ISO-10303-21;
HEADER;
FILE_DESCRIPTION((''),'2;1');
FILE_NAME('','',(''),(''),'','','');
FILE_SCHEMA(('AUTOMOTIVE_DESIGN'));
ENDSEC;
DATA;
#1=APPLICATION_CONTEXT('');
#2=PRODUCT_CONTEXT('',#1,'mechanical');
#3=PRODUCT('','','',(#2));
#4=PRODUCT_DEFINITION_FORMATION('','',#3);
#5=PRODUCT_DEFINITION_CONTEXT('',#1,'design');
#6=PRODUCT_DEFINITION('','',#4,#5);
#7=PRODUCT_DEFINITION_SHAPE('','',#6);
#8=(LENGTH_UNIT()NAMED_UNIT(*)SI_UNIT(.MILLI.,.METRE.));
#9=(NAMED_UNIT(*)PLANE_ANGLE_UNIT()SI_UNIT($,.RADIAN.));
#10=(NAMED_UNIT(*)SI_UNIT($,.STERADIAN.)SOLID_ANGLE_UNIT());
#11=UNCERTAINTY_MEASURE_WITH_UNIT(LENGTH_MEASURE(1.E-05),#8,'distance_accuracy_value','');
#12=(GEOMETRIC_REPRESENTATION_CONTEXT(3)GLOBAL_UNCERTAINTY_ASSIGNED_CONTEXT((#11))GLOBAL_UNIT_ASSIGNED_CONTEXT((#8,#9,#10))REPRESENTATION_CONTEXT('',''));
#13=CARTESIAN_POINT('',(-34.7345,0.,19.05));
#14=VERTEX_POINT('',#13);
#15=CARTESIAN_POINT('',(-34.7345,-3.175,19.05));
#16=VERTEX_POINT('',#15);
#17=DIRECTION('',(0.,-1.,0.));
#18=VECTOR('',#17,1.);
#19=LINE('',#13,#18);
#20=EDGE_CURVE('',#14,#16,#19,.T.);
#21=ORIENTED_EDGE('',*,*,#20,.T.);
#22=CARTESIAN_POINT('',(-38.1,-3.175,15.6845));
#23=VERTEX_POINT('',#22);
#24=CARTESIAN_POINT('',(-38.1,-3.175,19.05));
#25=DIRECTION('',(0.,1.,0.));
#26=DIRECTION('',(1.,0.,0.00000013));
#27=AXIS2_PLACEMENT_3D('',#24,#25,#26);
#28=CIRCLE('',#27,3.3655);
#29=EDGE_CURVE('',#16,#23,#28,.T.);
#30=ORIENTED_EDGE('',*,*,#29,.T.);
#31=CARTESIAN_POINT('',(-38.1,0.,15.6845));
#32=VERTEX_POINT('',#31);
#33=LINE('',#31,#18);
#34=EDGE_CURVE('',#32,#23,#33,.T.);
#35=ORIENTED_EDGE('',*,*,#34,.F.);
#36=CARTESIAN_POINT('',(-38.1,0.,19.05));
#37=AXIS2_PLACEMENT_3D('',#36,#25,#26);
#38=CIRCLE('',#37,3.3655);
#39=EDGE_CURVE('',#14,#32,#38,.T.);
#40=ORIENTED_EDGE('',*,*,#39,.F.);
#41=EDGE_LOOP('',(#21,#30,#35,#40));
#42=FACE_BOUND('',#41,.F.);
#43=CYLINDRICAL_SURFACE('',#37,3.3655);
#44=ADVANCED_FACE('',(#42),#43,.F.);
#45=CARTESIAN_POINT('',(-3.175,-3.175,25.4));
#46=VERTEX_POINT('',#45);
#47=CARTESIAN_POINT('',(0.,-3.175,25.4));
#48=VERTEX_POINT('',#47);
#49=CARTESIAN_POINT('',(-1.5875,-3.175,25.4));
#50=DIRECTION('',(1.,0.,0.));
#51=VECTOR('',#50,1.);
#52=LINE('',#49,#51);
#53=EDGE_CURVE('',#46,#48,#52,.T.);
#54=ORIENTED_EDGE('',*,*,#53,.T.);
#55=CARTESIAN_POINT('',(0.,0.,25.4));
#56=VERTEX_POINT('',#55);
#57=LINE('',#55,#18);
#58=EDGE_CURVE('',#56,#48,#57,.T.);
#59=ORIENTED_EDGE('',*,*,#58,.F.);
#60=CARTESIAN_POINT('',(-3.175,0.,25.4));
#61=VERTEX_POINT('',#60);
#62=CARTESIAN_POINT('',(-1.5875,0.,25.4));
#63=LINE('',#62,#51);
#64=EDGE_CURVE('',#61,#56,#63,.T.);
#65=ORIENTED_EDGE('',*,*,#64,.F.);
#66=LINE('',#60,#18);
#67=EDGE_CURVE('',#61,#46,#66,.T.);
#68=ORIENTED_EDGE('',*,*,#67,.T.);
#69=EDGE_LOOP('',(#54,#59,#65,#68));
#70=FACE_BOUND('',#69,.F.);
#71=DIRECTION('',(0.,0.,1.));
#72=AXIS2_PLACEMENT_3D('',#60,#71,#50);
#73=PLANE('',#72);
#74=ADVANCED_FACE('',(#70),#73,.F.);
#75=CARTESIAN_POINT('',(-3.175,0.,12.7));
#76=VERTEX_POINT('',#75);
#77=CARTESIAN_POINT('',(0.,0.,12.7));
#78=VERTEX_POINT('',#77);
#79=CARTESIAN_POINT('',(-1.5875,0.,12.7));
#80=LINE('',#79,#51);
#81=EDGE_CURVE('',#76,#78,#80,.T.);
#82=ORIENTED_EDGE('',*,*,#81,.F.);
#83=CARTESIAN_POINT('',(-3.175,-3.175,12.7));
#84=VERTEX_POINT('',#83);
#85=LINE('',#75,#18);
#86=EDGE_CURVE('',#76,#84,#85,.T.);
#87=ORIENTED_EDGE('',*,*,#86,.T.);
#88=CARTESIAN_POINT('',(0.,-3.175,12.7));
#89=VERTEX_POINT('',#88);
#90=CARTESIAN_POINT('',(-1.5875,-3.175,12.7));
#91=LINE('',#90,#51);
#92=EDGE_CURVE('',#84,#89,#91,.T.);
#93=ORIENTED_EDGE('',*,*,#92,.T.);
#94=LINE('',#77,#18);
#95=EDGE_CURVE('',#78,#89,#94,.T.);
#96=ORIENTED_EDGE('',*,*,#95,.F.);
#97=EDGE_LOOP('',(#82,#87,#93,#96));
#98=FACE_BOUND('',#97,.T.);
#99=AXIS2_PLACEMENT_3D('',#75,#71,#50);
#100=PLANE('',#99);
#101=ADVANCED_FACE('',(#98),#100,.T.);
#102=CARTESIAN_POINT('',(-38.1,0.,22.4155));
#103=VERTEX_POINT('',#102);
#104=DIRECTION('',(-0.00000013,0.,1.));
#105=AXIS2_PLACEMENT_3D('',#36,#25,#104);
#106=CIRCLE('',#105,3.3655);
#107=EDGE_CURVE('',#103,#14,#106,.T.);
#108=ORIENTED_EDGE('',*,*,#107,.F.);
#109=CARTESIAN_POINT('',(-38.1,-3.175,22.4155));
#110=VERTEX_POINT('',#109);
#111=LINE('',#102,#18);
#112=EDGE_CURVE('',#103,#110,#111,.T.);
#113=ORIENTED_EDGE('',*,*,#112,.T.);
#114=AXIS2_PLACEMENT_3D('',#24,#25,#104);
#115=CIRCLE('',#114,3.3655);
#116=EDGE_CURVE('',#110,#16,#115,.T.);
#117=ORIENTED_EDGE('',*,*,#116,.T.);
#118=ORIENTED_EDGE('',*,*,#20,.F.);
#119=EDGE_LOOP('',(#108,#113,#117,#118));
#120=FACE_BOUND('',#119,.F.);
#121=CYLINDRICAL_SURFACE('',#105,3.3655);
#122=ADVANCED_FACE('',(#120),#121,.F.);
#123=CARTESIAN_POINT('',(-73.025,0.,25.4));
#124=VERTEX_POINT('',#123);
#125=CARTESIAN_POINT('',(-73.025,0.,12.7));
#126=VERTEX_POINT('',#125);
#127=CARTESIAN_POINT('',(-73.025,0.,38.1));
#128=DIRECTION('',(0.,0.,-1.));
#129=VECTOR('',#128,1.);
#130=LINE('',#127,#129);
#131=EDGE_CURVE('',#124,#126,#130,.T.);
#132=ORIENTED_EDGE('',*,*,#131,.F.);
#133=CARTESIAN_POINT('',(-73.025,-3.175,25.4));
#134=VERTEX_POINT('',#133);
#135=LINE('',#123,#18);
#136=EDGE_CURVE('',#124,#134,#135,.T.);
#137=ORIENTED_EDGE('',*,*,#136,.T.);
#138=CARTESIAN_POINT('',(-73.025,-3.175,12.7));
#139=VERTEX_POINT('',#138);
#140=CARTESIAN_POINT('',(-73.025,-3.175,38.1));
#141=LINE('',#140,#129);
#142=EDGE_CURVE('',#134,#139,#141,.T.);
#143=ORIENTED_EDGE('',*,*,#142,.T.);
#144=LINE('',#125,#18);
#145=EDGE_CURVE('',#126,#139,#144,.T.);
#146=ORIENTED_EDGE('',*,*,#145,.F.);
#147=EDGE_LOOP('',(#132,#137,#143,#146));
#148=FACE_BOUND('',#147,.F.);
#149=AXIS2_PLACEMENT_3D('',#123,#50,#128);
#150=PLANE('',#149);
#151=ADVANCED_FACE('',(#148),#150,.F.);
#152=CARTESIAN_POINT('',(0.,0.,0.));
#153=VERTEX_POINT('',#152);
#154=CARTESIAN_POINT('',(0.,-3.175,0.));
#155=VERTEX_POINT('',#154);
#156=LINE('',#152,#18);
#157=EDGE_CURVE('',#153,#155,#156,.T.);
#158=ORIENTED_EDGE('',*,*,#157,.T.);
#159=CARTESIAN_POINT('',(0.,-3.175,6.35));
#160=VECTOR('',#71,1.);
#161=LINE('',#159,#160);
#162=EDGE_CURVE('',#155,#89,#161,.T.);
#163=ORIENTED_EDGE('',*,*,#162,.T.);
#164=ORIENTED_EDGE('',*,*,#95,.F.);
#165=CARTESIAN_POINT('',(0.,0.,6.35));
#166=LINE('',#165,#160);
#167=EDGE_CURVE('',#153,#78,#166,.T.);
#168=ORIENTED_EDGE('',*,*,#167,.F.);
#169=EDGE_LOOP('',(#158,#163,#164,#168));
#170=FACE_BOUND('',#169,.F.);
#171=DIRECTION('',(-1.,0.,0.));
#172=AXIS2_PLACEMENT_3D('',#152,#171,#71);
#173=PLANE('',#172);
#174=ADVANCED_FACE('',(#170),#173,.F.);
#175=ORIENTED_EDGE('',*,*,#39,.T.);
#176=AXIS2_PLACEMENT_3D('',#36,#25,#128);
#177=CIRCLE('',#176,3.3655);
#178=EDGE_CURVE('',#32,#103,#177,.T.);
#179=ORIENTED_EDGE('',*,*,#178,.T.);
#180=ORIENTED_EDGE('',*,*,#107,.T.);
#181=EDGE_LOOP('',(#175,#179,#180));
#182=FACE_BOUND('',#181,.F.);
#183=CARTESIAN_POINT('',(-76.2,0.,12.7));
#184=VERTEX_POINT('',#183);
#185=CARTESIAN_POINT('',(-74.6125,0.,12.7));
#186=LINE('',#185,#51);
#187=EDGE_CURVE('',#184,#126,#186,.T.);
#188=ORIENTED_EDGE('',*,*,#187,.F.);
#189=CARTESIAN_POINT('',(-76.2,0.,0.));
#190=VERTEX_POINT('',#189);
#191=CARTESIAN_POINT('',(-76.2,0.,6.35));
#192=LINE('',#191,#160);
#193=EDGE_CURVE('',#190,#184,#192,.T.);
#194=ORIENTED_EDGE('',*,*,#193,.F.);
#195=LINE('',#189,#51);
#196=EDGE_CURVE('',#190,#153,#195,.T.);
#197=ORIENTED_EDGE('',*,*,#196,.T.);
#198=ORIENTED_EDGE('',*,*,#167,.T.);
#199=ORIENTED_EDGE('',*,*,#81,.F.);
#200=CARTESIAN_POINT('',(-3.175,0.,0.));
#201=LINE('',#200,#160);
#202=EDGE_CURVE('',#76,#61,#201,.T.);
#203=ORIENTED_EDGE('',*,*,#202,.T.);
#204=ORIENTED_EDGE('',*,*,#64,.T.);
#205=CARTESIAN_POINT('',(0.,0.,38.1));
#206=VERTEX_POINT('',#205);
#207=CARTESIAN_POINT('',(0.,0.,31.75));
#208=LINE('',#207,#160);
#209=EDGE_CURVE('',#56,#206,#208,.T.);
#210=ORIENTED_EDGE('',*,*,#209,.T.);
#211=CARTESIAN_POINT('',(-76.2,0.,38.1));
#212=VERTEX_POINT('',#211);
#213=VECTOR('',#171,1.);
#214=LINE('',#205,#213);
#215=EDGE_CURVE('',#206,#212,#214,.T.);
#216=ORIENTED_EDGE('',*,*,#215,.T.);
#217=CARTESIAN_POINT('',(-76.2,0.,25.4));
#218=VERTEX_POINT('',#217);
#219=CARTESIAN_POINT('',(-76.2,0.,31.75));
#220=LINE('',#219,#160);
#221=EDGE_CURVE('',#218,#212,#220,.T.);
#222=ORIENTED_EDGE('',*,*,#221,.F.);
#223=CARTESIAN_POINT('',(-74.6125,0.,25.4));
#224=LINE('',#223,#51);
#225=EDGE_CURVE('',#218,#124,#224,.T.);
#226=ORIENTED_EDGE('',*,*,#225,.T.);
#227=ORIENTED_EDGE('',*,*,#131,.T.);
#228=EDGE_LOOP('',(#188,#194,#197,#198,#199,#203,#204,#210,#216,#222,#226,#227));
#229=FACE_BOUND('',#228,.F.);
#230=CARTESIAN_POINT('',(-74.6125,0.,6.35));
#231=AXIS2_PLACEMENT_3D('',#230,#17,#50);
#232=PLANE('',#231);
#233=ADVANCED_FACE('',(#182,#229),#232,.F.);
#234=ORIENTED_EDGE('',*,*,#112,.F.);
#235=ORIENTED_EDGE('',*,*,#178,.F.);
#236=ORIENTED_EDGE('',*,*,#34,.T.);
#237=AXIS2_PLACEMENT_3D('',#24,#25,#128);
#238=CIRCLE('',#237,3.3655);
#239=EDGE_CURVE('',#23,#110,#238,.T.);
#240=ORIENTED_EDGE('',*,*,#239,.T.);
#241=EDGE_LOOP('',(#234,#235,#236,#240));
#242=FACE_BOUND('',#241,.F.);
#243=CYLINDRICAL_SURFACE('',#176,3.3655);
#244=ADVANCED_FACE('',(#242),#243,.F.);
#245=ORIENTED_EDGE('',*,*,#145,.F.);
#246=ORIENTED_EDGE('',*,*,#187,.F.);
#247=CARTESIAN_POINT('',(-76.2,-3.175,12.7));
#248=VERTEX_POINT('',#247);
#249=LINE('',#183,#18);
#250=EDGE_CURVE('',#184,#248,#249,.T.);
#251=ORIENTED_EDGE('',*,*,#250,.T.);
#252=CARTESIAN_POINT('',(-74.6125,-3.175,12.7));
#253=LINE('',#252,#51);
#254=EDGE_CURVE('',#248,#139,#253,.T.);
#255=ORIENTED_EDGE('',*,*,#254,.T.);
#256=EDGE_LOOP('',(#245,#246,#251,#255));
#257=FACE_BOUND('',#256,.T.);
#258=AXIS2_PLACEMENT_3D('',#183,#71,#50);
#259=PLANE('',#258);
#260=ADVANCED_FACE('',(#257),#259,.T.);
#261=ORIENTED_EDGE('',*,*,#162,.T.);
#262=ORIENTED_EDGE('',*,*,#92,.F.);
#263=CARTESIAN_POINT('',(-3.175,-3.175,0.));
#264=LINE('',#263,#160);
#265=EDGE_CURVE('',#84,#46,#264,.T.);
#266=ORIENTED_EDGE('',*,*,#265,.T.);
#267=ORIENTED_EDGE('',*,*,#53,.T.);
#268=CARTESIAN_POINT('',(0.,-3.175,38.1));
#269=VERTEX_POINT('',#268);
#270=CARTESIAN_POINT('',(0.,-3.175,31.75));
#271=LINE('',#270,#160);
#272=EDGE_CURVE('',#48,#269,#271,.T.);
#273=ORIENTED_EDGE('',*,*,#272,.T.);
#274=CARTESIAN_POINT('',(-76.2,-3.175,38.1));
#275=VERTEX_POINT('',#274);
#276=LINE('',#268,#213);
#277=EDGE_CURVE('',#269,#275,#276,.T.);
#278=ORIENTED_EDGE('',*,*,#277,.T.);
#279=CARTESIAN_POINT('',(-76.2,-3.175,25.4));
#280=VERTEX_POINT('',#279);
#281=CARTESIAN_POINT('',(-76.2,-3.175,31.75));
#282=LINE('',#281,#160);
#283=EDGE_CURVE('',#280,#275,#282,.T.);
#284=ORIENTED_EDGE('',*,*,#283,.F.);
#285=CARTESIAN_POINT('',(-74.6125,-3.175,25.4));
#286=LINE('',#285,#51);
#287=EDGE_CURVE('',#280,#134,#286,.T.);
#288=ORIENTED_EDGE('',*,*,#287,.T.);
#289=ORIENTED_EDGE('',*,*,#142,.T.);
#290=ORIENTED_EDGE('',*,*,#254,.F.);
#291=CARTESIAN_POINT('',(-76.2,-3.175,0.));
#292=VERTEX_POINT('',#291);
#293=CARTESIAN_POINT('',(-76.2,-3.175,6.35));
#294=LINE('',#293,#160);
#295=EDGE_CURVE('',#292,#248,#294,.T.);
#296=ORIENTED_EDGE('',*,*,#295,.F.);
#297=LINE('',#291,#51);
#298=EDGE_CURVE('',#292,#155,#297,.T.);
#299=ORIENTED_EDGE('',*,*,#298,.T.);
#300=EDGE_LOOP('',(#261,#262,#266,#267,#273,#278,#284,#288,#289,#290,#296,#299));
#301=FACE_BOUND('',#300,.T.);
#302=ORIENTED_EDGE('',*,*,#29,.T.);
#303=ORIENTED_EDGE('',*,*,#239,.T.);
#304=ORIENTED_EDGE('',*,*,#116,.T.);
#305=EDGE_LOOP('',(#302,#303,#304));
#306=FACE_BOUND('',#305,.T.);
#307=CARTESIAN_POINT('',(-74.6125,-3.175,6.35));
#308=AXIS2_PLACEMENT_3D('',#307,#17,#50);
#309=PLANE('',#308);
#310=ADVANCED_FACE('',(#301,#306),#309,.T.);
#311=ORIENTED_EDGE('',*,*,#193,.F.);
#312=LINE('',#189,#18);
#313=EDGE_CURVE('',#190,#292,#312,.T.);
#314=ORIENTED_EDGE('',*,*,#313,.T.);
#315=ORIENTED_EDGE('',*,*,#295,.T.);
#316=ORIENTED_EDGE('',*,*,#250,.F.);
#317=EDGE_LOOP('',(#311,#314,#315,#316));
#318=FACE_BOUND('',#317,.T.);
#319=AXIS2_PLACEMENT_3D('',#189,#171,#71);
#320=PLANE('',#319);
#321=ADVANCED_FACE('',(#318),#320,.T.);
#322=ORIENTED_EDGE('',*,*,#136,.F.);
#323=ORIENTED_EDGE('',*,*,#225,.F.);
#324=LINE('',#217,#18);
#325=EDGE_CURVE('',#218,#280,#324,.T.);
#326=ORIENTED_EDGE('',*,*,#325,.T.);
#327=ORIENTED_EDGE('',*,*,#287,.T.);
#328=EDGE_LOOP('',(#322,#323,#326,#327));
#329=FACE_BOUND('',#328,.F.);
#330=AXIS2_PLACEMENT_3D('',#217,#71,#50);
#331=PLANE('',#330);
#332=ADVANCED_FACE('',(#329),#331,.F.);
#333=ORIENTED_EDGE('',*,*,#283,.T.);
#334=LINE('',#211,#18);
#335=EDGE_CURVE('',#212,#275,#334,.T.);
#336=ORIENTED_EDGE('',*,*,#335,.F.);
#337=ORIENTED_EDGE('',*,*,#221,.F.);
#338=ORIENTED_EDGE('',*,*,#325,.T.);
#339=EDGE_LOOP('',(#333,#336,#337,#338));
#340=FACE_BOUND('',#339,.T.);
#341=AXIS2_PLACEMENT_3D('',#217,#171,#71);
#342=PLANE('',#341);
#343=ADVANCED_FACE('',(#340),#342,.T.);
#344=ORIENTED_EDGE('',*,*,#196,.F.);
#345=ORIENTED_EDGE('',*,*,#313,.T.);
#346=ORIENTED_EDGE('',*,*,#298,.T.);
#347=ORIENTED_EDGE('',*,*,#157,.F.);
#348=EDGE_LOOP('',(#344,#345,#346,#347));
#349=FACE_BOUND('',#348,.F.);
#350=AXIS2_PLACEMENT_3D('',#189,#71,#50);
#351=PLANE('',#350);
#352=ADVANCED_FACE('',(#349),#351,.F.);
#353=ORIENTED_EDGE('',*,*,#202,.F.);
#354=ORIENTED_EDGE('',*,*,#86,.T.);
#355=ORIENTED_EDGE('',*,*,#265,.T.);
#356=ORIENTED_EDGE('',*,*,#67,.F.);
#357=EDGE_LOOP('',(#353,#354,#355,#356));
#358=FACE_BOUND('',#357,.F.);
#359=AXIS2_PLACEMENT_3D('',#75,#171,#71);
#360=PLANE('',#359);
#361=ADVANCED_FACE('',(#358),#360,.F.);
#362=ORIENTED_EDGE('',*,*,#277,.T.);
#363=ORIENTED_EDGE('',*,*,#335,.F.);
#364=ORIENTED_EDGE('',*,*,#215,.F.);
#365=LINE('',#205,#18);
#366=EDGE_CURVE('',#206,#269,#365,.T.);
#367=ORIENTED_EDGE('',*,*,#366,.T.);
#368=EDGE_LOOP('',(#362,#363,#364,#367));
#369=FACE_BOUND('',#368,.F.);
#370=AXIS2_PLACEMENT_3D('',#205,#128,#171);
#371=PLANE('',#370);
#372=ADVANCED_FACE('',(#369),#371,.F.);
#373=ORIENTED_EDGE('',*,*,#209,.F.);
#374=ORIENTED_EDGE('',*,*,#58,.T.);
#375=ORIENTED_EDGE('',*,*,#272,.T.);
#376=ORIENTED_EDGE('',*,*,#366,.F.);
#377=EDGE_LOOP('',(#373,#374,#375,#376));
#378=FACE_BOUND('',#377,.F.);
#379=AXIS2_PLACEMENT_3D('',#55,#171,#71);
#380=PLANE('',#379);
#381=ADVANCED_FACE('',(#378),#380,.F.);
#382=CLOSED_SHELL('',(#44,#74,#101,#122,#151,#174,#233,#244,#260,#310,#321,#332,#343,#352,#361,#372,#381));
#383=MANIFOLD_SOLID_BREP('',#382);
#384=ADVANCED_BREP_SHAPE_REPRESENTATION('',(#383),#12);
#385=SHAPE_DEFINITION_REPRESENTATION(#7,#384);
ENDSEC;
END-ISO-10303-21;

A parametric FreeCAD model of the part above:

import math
import FreeCAD as App
import Part
import Sketcher

V = App.Vector
Q = App.Units.Quantity


def add_polygon(sketch, points):
    """Adds a closed chain of lines whose ends are joined by coincident constraints."""
    first, n = sketch.GeometryCount, len(points)
    for a, b in zip(points, points[1:] + points[:1]):
        sketch.addGeometry(Part.LineSegment(App.Vector(*a, 0), App.Vector(*b, 0)), False)
    for i in range(n):
        sketch.addConstraint(Sketcher.Constraint("Coincident", first + i, 2, first + (i + 1) % n, 1))

doc = App.newDocument("Part")
body = doc.addObject("PartDesign::Body", "Body")

# Sketch on XZ plane
sketch1 = body.newObject("Sketcher::SketchObject", "Sketch")
sketch1.AttachmentSupport = (doc.getObject("XZ_Plane"), [""])
sketch1.MapMode = "FlatFace"
add_polygon(sketch1, [(-76.2, 12.7), (-76.2, 0), (0, 0), (0, 12.7), (-3.2, 12.7), (-3.2, 25.4), (0, 25.4), (0, 38.1), (-76.2, 38.1), (-76.2, 25.4), (-73, 25.4), (-73, 12.7)])  # lines 0-11
sketch1.addGeometry(Part.ArcOfCircle(Part.Circle(V(-38.1, 19.1, 0), V(0, 0, 1), 3.4), math.radians(90), math.radians(270)), False)  # 12
sketch1.addGeometry(Part.ArcOfCircle(Part.Circle(V(-38.1, 19.1, 0), V(0, 0, 1), 3.4), math.radians(0), math.radians(90)), False)  # 13
sketch1.addGeometry(Part.ArcOfCircle(Part.Circle(V(-38.1, 19, 0), V(0, 0, 1), 3.4), math.radians(-90), math.radians(0)), False)  # 14
sketch1.addConstraint([
    Sketcher.Constraint("Tangent", 12, 1, 13, 2),
    Sketcher.Constraint("Tangent", 13, 1, 14, 2),
    Sketcher.Constraint("Tangent", 14, 1, 12, 2),
    Sketcher.Constraint("Vertical", 0),
    Sketcher.Constraint("Horizontal", 1),
    Sketcher.Constraint("Vertical", 2),
    Sketcher.Constraint("Horizontal", 3),
    Sketcher.Constraint("Vertical", 4),
    Sketcher.Constraint("Horizontal", 5),
    Sketcher.Constraint("Vertical", 6),
    Sketcher.Constraint("Horizontal", 7),
    Sketcher.Constraint("Vertical", 8),
    Sketcher.Constraint("Horizontal", 9),
    Sketcher.Constraint("Vertical", 10),
    Sketcher.Constraint("Horizontal", 11),
    Sketcher.Constraint("Coincident", 1, 2, -1, 1),
    Sketcher.Constraint("PointOnObject", 5, 2, -2),
    Sketcher.Constraint("Horizontal", 5, 2, 8, 2),
    Sketcher.Constraint("Horizontal", 3, 2, 10, 2),
    Sketcher.Constraint("Horizontal", 14, 3, 13, 1),
    Sketcher.Constraint("Vertical", 0, 2, 7, 2),
    Sketcher.Constraint("Vertical", 14, 3, 12, 1),
    Sketcher.Constraint("Vertical", 12, 1, 14, 1),
    Sketcher.Constraint("Equal", 5, 9),
    Sketcher.Constraint("Equal", 2, 4),
    Sketcher.Constraint("Equal", 4, 6),
    Sketcher.Constraint("DistanceX", 1, 1, 1, 2, Q("3 in")),
    Sketcher.Constraint("DistanceY", 0, 2, 0, 1, Q("0.5 in")),
    Sketcher.Constraint("DistanceX", 12, 3, -1, 1, Q("1.5 in")),
    Sketcher.Constraint("Radius", 12, Q("0.1325 in")),
    Sketcher.Constraint("DistanceX", 3, 2, 3, 1, Q("0.125 in")),
    Sketcher.Constraint("DistanceY", -1, 1, 12, 3, Q("0.75 in")),
])
pad1 = body.newObject("PartDesign::Pad", "Pad")
pad1.Profile = sketch1
pad1.Length = Q("0.125 in")

doc.recompute()
